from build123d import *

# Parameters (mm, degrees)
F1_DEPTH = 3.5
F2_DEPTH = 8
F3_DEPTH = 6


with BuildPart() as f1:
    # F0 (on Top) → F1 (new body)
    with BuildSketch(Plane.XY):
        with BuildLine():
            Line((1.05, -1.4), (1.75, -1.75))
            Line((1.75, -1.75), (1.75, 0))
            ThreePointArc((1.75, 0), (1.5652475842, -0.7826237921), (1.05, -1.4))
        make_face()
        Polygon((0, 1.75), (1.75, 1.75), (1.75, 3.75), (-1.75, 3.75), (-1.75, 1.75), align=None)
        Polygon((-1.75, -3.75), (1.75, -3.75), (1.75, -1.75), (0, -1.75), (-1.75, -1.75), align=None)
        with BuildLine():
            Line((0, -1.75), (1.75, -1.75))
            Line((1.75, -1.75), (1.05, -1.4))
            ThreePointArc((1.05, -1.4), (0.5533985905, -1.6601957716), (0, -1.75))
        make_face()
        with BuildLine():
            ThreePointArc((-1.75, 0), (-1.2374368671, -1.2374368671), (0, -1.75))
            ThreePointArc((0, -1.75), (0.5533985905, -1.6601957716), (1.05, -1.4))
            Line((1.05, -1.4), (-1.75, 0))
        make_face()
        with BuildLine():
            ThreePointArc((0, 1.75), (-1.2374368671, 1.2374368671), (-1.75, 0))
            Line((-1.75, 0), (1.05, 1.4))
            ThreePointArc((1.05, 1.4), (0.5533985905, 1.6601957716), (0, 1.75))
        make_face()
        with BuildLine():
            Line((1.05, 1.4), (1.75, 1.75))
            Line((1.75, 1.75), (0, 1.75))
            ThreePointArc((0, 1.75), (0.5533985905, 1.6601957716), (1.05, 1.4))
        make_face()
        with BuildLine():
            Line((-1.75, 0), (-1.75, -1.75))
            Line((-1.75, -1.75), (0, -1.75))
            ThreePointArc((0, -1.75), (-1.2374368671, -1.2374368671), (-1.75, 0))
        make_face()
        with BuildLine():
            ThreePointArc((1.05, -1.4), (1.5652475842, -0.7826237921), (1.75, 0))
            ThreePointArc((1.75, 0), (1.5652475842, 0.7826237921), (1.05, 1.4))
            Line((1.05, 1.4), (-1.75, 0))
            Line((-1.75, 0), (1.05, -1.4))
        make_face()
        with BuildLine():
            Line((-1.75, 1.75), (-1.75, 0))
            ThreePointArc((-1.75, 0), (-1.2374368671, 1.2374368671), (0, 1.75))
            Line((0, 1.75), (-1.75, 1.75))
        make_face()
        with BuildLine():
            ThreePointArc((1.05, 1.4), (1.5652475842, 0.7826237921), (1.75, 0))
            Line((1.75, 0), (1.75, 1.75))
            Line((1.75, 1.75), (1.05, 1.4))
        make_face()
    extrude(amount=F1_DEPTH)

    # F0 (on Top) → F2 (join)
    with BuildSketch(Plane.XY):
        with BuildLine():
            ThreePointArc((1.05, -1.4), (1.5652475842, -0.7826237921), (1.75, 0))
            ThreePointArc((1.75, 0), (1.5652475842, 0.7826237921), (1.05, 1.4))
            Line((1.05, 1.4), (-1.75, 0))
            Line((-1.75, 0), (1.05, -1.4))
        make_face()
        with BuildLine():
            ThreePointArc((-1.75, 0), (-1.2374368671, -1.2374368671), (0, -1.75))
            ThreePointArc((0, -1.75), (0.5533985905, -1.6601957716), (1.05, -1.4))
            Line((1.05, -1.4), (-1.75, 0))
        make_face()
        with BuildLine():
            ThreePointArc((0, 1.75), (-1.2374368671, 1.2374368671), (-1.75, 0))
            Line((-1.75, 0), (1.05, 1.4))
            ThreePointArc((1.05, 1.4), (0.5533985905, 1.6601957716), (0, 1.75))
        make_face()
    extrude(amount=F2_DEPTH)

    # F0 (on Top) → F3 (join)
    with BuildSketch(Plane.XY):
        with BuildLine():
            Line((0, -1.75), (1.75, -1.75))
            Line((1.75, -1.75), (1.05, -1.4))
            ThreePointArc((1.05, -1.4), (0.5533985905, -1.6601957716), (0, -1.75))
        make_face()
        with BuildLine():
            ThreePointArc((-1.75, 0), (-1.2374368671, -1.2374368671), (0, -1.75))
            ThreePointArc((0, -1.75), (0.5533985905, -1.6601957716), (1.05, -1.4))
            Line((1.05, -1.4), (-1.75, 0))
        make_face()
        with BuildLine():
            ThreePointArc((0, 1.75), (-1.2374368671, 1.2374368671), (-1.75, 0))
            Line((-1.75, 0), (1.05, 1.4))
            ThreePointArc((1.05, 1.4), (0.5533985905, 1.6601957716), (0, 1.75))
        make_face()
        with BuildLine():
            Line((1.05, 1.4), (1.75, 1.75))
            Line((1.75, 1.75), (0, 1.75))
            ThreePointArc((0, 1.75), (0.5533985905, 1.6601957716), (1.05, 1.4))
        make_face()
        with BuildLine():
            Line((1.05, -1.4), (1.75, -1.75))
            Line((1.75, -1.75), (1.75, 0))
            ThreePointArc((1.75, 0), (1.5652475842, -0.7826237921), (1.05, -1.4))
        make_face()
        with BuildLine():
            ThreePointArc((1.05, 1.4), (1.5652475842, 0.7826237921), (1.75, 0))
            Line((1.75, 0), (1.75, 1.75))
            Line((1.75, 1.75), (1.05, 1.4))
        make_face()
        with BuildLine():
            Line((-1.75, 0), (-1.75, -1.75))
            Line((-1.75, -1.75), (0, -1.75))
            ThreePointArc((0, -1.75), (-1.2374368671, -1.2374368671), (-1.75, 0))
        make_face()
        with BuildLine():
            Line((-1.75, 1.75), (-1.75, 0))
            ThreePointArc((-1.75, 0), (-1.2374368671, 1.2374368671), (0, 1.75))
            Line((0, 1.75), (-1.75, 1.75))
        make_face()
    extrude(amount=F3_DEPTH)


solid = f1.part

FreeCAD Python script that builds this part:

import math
import FreeCAD as App
import Part
import Sketcher


def add_polygon(sketch, points):
    """Adds a closed chain of lines whose ends are joined by coincident constraints."""
    first, n = sketch.GeometryCount, len(points)
    for a, b in zip(points, points[1:] + points[:1]):
        sketch.addGeometry(Part.LineSegment(App.Vector(*a, 0), App.Vector(*b, 0)), False)
    for i in range(n):
        sketch.addConstraint(Sketcher.Constraint("Coincident", first + i, 2, first + (i + 1) % n, 1))

doc = App.newDocument("Part")
body = doc.addObject("PartDesign::Body", "Body")

# Sketch on XY plane
sketch1 = body.newObject("Sketcher::SketchObject", "Sketch")
sketch1.AttachmentSupport = (doc.getObject("XY_Plane"), [""])
sketch1.MapMode = "FlatFace"
add_polygon(sketch1, [(-1.8, -3.8), (1.8, -3.8), (1.8, 3.8), (-1.8, 3.8)])  # lines 0-3
sketch1.addConstraint(Sketcher.Constraint("Horizontal", 0))
sketch1.addConstraint(Sketcher.Constraint("Vertical", 1))
sketch1.addConstraint(Sketcher.Constraint("Horizontal", 2))
sketch1.addConstraint(Sketcher.Constraint("Vertical", 3))
sketch1.addConstraint(Sketcher.Constraint("Symmetric", 0, 2, 2, 2, -1, 1))
sketch1.addConstraint(Sketcher.Constraint("DistanceX", 0, 1, 0, 2, 3.5))
sketch1.addConstraint(Sketcher.Constraint("DistanceY", 1, 1, 1, 2, 7.5))
pad1 = body.newObject("PartDesign::Pad", "Pad")
pad1.Profile = sketch1
pad1.Length = 3.5

# Sketch on XY plane
sketch2 = body.newObject("Sketcher::SketchObject", "Sketch001")
sketch2.AttachmentSupport = (doc.getObject("XY_Plane"), [""])
sketch2.MapMode = "FlatFace"
sketch2.addGeometry(Part.ArcOfCircle(Part.Circle(App.Vector(0, 0, 0), App.Vector(0, 0, 1), 1.8), math.radians(-53), math.radians(0)), False)
sketch2.addGeometry(Part.ArcOfCircle(Part.Circle(App.Vector(0, 0, 0), App.Vector(0, 0, 1), 1.8), math.radians(0), math.radians(53)), False)
sketch2.addGeometry(Part.ArcOfCircle(Part.Circle(App.Vector(0, 0, 0), App.Vector(0, 0, 1), 1.8), math.radians(53), math.radians(90)), False)
sketch2.addGeometry(Part.ArcOfCircle(Part.Circle(App.Vector(0, 0, 0), App.Vector(0, 0, 1), 1.8), math.radians(90), math.radians(180)), False)
sketch2.addGeometry(Part.ArcOfCircle(Part.Circle(App.Vector(0, 0, 0), App.Vector(0, 0, 1), 1.8), math.radians(180), math.radians(270)), False)
sketch2.addGeometry(Part.ArcOfCircle(Part.Circle(App.Vector(0, 0, 0), App.Vector(0, 0, 1), 1.8), math.radians(-90), math.radians(-53)), False)
sketch2.addConstraint(Sketcher.Constraint("Tangent", 0, 2, 1, 1))
sketch2.addConstraint(Sketcher.Constraint("Tangent", 1, 2, 2, 1))
sketch2.addConstraint(Sketcher.Constraint("Tangent", 2, 2, 3, 1))
sketch2.addConstraint(Sketcher.Constraint("Tangent", 3, 2, 4, 1))
sketch2.addConstraint(Sketcher.Constraint("Tangent", 4, 2, 5, 1))
sketch2.addConstraint(Sketcher.Constraint("Tangent", 5, 2, 0, 1))
sketch2.addConstraint(Sketcher.Constraint("Coincident", 0, 3, -1, 1))
sketch2.addConstraint(Sketcher.Constraint("Coincident", 2, 3, -1, 1))
sketch2.addConstraint(Sketcher.Constraint("Equal", 2, 3))
sketch2.addConstraint(Sketcher.Constraint("PointOnObject", 0, 2, -1))
sketch2.addConstraint(Sketcher.Constraint("PointOnObject", 2, 2, -2))
sketch2.addConstraint(Sketcher.Constraint("PointOnObject", 3, 2, -1))
sketch2.addConstraint(Sketcher.Constraint("PointOnObject", 4, 2, -2))
sketch2.addConstraint(Sketcher.Constraint("Vertical", 1, 2, 5, 2))
sketch2.addConstraint(Sketcher.Constraint("Radius", 0, 1.75))
sketch2.addConstraint(Sketcher.Constraint("DistanceY", -1, 1, 1, 2, 1.4))
pad2 = body.newObject("PartDesign::Pad", "Pad001")
pad2.Profile = sketch2
pad2.Length = 8

# Sketch on XY plane
sketch3 = body.newObject("Sketcher::SketchObject", "Sketch002")
sketch3.AttachmentSupport = (doc.getObject("XY_Plane"), [""])
sketch3.MapMode = "FlatFace"
sketch3.addGeometry(Part.LineSegment(App.Vector(1.8, -1.8, 0), App.Vector(1.8, 0, 0)), False)
sketch3.addGeometry(Part.ArcOfCircle(Part.Circle(App.Vector(0, 0, 0), App.Vector(0, 0, 1), 1.8), math.radians(-53), math.radians(0)), False)
sketch3.addGeometry(Part.LineSegment(App.Vector(1.1, -1.4, 0), App.Vector(-1.8, 0, 0)), False)
sketch3.addGeometry(Part.LineSegment(App.Vector(-1.8, 0, 0), App.Vector(-1.8, -1.8, 0)), False)
sketch3.addGeometry(Part.LineSegment(App.Vector(-1.8, -1.8, 0), App.Vector(1.8, -1.8, 0)), False)
sketch3.addGeometry(Part.LineSegment(App.Vector(-1.8, 0, 0), App.Vector(1.1, 1.4, 0)), False)
sketch3.addGeometry(Part.ArcOfCircle(Part.Circle(App.Vector(0, 0, 0), App.Vector(0, 0, 1), 1.8), math.radians(0), math.radians(53)), False)
sketch3.addGeometry(Part.LineSegment(App.Vector(1.8, 0, 0), App.Vector(1.8, 1.8, 0)), False)
sketch3.addGeometry(Part.LineSegment(App.Vector(1.8, 1.8, 0), App.Vector(-1.8, 1.8, 0)), False)
sketch3.addGeometry(Part.LineSegment(App.Vector(-1.8, 1.8, 0), App.Vector(-1.8, 0, 0)), False)
sketch3.addConstraint(Sketcher.Constraint("Tangent", 0, 2, 1, 2))
sketch3.addConstraint(Sketcher.Constraint("Coincident", 1, 1, 2, 1))
sketch3.addConstraint(Sketcher.Constraint("Coincident", 2, 2, 3, 1))
sketch3.addConstraint(Sketcher.Constraint("Coincident", 3, 2, 4, 1))
sketch3.addConstraint(Sketcher.Constraint("Coincident", 4, 2, 0, 1))
sketch3.addConstraint(Sketcher.Constraint("Coincident", 5, 2, 6, 2))
sketch3.addConstraint(Sketcher.Constraint("Tangent", 6, 1, 7, 1))
sketch3.addConstraint(Sketcher.Constraint("Coincident", 7, 2, 8, 1))
sketch3.addConstraint(Sketcher.Constraint("Coincident", 8, 2, 9, 1))
sketch3.addConstraint(Sketcher.Constraint("Coincident", 9, 2, 5, 1))
sketch3.addConstraint(Sketcher.Constraint("Vertical", 0))
sketch3.addConstraint(Sketcher.Constraint("Vertical", 3))
sketch3.addConstraint(Sketcher.Constraint("Horizontal", 4))
sketch3.addConstraint(Sketcher.Constraint("Vertical", 7))
sketch3.addConstraint(Sketcher.Constraint("Horizontal", 8))
sketch3.addConstraint(Sketcher.Constraint("Vertical", 9))
sketch3.addConstraint(Sketcher.Constraint("Coincident", 1, 3, -1, 1))
sketch3.addConstraint(Sketcher.Constraint("Coincident", 6, 3, -1, 1))
sketch3.addConstraint(Sketcher.Constraint("Coincident", 9, 2, 2, 2))
sketch3.addConstraint(Sketcher.Constraint("Equal", 1, 6))
sketch3.addConstraint(Sketcher.Constraint("Symmetric", 0, 2, 2, 2, -1, 1))
sketch3.addConstraint(Sketcher.Constraint("Vertical", 1, 1, 5, 2))
sketch3.addConstraint(Sketcher.Constraint("Equal", 3, 7))
sketch3.addConstraint(Sketcher.Constraint("Radius", 1, 1.75))
sketch3.addConstraint(Sketcher.Constraint("DistanceY", 0, 1, 0, 2, 1.75))
sketch3.addConstraint(Sketcher.Constraint("DistanceY", 1, 1, -1, 1, 1.4))
pad3 = body.newObject("PartDesign::Pad", "Pad002")
pad3.Profile = sketch3
pad3.Length = 6

doc.recompute()
